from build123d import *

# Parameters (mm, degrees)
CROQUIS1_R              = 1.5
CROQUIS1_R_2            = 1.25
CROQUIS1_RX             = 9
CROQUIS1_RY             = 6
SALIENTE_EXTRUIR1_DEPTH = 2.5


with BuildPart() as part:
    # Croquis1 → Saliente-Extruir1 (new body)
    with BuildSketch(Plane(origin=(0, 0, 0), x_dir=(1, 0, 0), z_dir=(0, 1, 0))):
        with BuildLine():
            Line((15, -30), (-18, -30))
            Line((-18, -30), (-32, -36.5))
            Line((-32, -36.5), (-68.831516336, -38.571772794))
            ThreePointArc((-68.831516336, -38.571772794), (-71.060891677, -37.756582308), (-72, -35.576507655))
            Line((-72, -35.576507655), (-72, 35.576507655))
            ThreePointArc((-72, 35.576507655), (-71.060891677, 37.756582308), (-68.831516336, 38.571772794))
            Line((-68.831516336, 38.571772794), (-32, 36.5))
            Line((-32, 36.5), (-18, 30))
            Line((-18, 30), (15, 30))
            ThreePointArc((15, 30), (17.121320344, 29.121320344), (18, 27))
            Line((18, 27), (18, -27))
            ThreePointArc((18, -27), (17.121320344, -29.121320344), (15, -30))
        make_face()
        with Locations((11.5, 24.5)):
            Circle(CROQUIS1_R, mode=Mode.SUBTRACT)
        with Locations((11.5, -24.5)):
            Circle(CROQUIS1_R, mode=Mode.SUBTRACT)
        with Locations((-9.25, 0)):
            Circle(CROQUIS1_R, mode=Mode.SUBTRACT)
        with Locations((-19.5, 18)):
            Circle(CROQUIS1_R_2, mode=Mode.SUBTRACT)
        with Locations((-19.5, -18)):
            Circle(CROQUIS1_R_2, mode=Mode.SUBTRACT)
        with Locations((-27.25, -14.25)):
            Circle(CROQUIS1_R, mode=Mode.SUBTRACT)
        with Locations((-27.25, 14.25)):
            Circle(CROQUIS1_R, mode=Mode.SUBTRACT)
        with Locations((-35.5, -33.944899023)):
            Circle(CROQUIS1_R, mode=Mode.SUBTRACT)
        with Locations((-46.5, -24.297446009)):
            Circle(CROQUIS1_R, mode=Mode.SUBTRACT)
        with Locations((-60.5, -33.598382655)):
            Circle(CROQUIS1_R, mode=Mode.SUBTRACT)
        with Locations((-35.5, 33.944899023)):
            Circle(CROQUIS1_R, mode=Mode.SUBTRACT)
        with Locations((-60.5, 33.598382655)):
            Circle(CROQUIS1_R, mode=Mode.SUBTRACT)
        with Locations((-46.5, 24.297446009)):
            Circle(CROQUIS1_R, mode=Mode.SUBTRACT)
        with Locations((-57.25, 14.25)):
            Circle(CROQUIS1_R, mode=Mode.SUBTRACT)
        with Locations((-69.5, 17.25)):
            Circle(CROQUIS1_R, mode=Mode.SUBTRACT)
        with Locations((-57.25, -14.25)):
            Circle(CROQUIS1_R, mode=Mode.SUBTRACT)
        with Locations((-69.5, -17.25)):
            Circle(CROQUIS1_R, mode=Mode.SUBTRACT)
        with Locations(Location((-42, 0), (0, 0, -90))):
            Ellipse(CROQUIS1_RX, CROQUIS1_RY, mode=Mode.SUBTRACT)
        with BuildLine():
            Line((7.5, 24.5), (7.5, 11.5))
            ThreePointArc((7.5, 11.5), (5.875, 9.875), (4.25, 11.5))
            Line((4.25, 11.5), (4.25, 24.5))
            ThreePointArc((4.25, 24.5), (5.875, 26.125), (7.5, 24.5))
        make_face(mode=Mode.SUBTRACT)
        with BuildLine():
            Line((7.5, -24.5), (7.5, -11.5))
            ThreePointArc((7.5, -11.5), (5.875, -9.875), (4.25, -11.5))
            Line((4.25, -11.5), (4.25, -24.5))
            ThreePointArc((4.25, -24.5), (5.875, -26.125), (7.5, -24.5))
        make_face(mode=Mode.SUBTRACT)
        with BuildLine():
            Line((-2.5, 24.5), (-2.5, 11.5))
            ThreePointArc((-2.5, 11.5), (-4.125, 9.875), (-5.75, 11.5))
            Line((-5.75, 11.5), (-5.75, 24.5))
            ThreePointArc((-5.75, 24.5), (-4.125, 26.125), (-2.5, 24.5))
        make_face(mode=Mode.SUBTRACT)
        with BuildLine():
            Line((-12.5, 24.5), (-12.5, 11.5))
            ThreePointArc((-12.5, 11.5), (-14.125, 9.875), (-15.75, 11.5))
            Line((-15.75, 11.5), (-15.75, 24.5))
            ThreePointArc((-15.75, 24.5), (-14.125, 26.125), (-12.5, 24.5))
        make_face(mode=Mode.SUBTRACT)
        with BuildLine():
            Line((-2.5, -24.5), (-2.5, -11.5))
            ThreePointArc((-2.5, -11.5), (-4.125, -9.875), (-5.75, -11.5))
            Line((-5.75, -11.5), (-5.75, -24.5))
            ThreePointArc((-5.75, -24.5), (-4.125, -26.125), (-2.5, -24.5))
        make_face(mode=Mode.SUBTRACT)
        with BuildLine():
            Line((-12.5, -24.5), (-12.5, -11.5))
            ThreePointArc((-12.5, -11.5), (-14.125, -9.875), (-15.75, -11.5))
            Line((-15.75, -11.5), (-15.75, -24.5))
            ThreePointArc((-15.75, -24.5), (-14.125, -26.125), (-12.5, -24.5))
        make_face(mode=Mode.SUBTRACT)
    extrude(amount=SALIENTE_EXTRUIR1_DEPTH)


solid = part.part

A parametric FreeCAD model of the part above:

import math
import FreeCAD as App
import Part
import Sketcher
from FreeCAD import Vector

doc = App.newDocument("Part")
body = doc.addObject("PartDesign::Body", "Body")

# Sketch on XZ plane
sketch1 = body.newObject("Sketcher::SketchObject", "Sketch")
sketch1.AttachmentSupport = (doc.getObject("XZ_Plane"), [""])
sketch1.MapMode = "FlatFace"
sketch1.addGeometry([
    Part.LineSegment(Vector(-18, 30, 0), Vector(15, 30, 0)),  # 0
    Part.ArcOfCircle(Part.Circle(Vector(15, 27, 0), Vector(0, 0, 1), 3), math.radians(0), math.radians(90)),  # 1
    Part.LineSegment(Vector(18, 27, 0), Vector(18, -27, 0)),  # 2
    Part.ArcOfCircle(Part.Circle(Vector(15, -27, 0), Vector(0, 0, 1), 3), math.radians(-90), math.radians(0)),  # 3
    Part.LineSegment(Vector(15, -30, 0), Vector(-18, -30, 0)),  # 4
    Part.LineSegment(Vector(-18, -30, 0), Vector(-32, -36.5, 0)),  # 5
    Part.LineSegment(Vector(-32, -36.5, 0), Vector(-68.831516, -38.571773, 0)),  # 6
    Part.ArcOfCircle(Part.Circle(Vector(-69, -35.576508, 0), Vector(0, 0, 1), 3), math.radians(-180), math.radians(-86.780505)),  # 7
    Part.LineSegment(Vector(-72, -35.576508, 0), Vector(-72, 35.576508, 0)),  # 8
    Part.ArcOfCircle(Part.Circle(Vector(-69, 35.576508, 0), Vector(0, 0, 1), 3), math.radians(86.780505), math.radians(180)),  # 9
    Part.LineSegment(Vector(-68.831516, 38.571773, 0), Vector(-32, 36.5, 0)),  # 10
    Part.LineSegment(Vector(-32, 36.5, 0), Vector(-18, 30, 0)),  # 11
    Part.Circle(Vector(11.5, 24.5, 0), Vector(0, 0, 1), 1.5),  # 12
    Part.ArcOfCircle(Part.Circle(Vector(5.875, 24.5, 0), Vector(0, 0, 1), 1.625), math.radians(0), math.radians(180)),  # 13
    Part.LineSegment(Vector(4.25, 24.5, 0), Vector(4.25, 11.5, 0)),  # 14
    Part.ArcOfCircle(Part.Circle(Vector(5.875, 11.5, 0), Vector(0, 0, 1), 1.625), math.radians(180), math.radians(360)),  # 15
    Part.LineSegment(Vector(7.5, 11.5, 0), Vector(7.5, 24.5, 0)),  # 16
    Part.ArcOfCircle(Part.Circle(Vector(-4.125, 24.5, 0), Vector(0, 0, 1), 1.625), math.radians(0), math.radians(180)),  # 17
    Part.LineSegment(Vector(-5.75, 24.5, 0), Vector(-5.75, 11.5, 0)),  # 18
    Part.ArcOfCircle(Part.Circle(Vector(-4.125, 11.5, 0), Vector(0, 0, 1), 1.625), math.radians(180), math.radians(360)),  # 19
    Part.LineSegment(Vector(-2.5, 11.5, 0), Vector(-2.5, 24.5, 0)),  # 20
    Part.ArcOfCircle(Part.Circle(Vector(-14.125, 24.5, 0), Vector(0, 0, 1), 1.625), math.radians(0), math.radians(180)),  # 21
    Part.LineSegment(Vector(-15.75, 24.5, 0), Vector(-15.75, 11.5, 0)),  # 22
    Part.ArcOfCircle(Part.Circle(Vector(-14.125, 11.5, 0), Vector(0, 0, 1), 1.625), math.radians(180), math.radians(360)),  # 23
    Part.LineSegment(Vector(-12.5, 11.5, 0), Vector(-12.5, 24.5, 0)),  # 24
    Part.Circle(Vector(-19.5, 18, 0), Vector(0, 0, 1), 1.25),  # 25
    Part.Circle(Vector(-27.25, 14.25, 0), Vector(0, 0, 1), 1.5),  # 26
    Part.Circle(Vector(-35.5, 33.944899, 0), Vector(0, 0, 1), 1.5),  # 27
    Part.Circle(Vector(-46.5, 24.297446, 0), Vector(0, 0, 1), 1.5),  # 28
    Part.Circle(Vector(-60.5, 33.598383, 0), Vector(0, 0, 1), 1.5),  # 29
    Part.Circle(Vector(-57.25, 14.25, 0), Vector(0, 0, 1), 1.5),  # 30
    Part.Circle(Vector(-69.5, 17.25, 0), Vector(0, 0, 1), 1.5),  # 31
    Part.Circle(Vector(-9.25, 0, 0), Vector(0, 0, 1), 1.5),  # 32
    Part.Circle(Vector(-27.25, -14.25, 0), Vector(0, 0, 1), 1.5),  # 33
    Part.LineSegment(Vector(7.5, -24.5, 0), Vector(7.5, -11.5, 0)),  # 34
    Part.ArcOfCircle(Part.Circle(Vector(5.875, -11.5, 0), Vector(0, 0, 1), 1.625), math.radians(0), math.radians(180)),  # 35
    Part.LineSegment(Vector(4.25, -11.5, 0), Vector(4.25, -24.5, 0)),  # 36
    Part.ArcOfCircle(Part.Circle(Vector(5.875, -24.5, 0), Vector(0, 0, 1), 1.625), math.radians(180), math.radians(360)),  # 37
    Part.Circle(Vector(11.5, -24.5, 0), Vector(0, 0, 1), 1.5),  # 38
    Part.LineSegment(Vector(-2.5, -24.5, 0), Vector(-2.5, -11.5, 0)),  # 39
    Part.ArcOfCircle(Part.Circle(Vector(-4.125, -11.5, 0), Vector(0, 0, 1), 1.625), math.radians(0), math.radians(180)),  # 40
    Part.LineSegment(Vector(-5.75, -11.5, 0), Vector(-5.75, -24.5, 0)),  # 41
    Part.ArcOfCircle(Part.Circle(Vector(-4.125, -24.5, 0), Vector(0, 0, 1), 1.625), math.radians(180), math.radians(360)),  # 42
    Part.LineSegment(Vector(-12.5, -24.5, 0), Vector(-12.5, -11.5, 0)),  # 43
    Part.ArcOfCircle(Part.Circle(Vector(-14.125, -11.5, 0), Vector(0, 0, 1), 1.625), math.radians(0), math.radians(180)),  # 44
    Part.LineSegment(Vector(-15.75, -11.5, 0), Vector(-15.75, -24.5, 0)),  # 45
    Part.ArcOfCircle(Part.Circle(Vector(-14.125, -24.5, 0), Vector(0, 0, 1), 1.625), math.radians(180), math.radians(360)),  # 46
    Part.Circle(Vector(-19.5, -18, 0), Vector(0, 0, 1), 1.25),  # 47
    Part.Ellipse(Vector(-42, 9, 0), Vector(-48, 0, 0), Vector(-42, 0, 0)),  # 48
    Part.Circle(Vector(-57.25, -14.25, 0), Vector(0, 0, 1), 1.5),  # 49
    Part.Circle(Vector(-69.5, -17.25, 0), Vector(0, 0, 1), 1.5),  # 50
    Part.Circle(Vector(-46.5, -24.297446, 0), Vector(0, 0, 1), 1.5),  # 51
    Part.Circle(Vector(-35.5, -33.944899, 0), Vector(0, 0, 1), 1.5),  # 52
    Part.Circle(Vector(-60.5, -33.598383, 0), Vector(0, 0, 1), 1.5),  # 53
], False)
sketch1.addConstraint([
    Sketcher.Constraint("Block", 48),
    Sketcher.Constraint("Tangent", 0, 2, 1, 2),
    Sketcher.Constraint("Tangent", 1, 1, 2, 1),
    Sketcher.Constraint("Tangent", 2, 2, 3, 2),
    Sketcher.Constraint("Tangent", 3, 1, 4, 1),
    Sketcher.Constraint("Coincident", 4, 2, 5, 1),
    Sketcher.Constraint("Coincident", 5, 2, 6, 1),
    Sketcher.Constraint("Tangent", 6, 2, 7, 2),
    Sketcher.Constraint("Tangent", 7, 1, 8, 1),
    Sketcher.Constraint("Tangent", 8, 2, 9, 2),
    Sketcher.Constraint("Tangent", 9, 1, 10, 1),
    Sketcher.Constraint("Coincident", 10, 2, 11, 1),
    Sketcher.Constraint("Coincident", 11, 2, 0, 1),
    Sketcher.Constraint("Tangent", 13, 2, 14, 1),
    Sketcher.Constraint("Tangent", 14, 2, 15, 1),
    Sketcher.Constraint("Tangent", 15, 2, 16, 1),
    Sketcher.Constraint("Tangent", 16, 2, 13, 1),
    Sketcher.Constraint("Tangent", 17, 2, 18, 1),
    Sketcher.Constraint("Tangent", 18, 2, 19, 1),
    Sketcher.Constraint("Tangent", 19, 2, 20, 1),
    Sketcher.Constraint("Tangent", 20, 2, 17, 1),
    Sketcher.Constraint("Tangent", 21, 2, 22, 1),
    Sketcher.Constraint("Tangent", 22, 2, 23, 1),
    Sketcher.Constraint("Tangent", 23, 2, 24, 1),
    Sketcher.Constraint("Tangent", 24, 2, 21, 1),
    Sketcher.Constraint("Tangent", 34, 2, 35, 1),
    Sketcher.Constraint("Tangent", 35, 2, 36, 1),
    Sketcher.Constraint("Tangent", 36, 2, 37, 1),
    Sketcher.Constraint("Tangent", 37, 2, 34, 1),
    Sketcher.Constraint("Tangent", 39, 2, 40, 1),
    Sketcher.Constraint("Tangent", 40, 2, 41, 1),
    Sketcher.Constraint("Tangent", 41, 2, 42, 1),
    Sketcher.Constraint("Tangent", 42, 2, 39, 1),
    Sketcher.Constraint("Tangent", 43, 2, 44, 1),
    Sketcher.Constraint("Tangent", 44, 2, 45, 1),
    Sketcher.Constraint("Tangent", 45, 2, 46, 1),
    Sketcher.Constraint("Tangent", 46, 2, 43, 1),
    Sketcher.Constraint("Horizontal", 0),
    Sketcher.Constraint("Vertical", 2),
    Sketcher.Constraint("Horizontal", 4),
    Sketcher.Constraint("Vertical", 8),
    Sketcher.Constraint("Vertical", 14),
    Sketcher.Constraint("Vertical", 16),
    Sketcher.Constraint("Vertical", 18),
    Sketcher.Constraint("Vertical", 20),
    Sketcher.Constraint("Vertical", 22),
    Sketcher.Constraint("Vertical", 24),
    Sketcher.Constraint("Vertical", 34),
    Sketcher.Constraint("Vertical", 36),
    Sketcher.Constraint("Vertical", 39),
    Sketcher.Constraint("Vertical", 41),
    Sketcher.Constraint("Vertical", 43),
    Sketcher.Constraint("Vertical", 45),
    Sketcher.Constraint("Equal", 1, 3),
    Sketcher.Constraint("Equal", 3, 7),
    Sketcher.Constraint("Equal", 7, 9),
    Sketcher.Constraint("Equal", 15, 17),
    Sketcher.Constraint("Equal", 19, 21),
    Sketcher.Constraint("Equal", 12, 26),
    Sketcher.Constraint("Equal", 26, 27),
    Sketcher.Constraint("Equal", 27, 28),
    Sketcher.Constraint("Equal", 28, 29),
    Sketcher.Constraint("Equal", 29, 30),
    Sketcher.Constraint("Equal", 30, 31),
    Sketcher.Constraint("Equal", 31, 32),
    Sketcher.Constraint("Equal", 32, 33),
    Sketcher.Constraint("Equal", 23, 35),
    Sketcher.Constraint("Equal", 33, 38),
    Sketcher.Constraint("Equal", 37, 40),
    Sketcher.Constraint("Equal", 42, 44),
    Sketcher.Constraint("Equal", 25, 47),
    Sketcher.Constraint("Equal", 38, 49),
    Sketcher.Constraint("Equal", 49, 50),
    Sketcher.Constraint("Equal", 50, 51),
    Sketcher.Constraint("Equal", 51, 52),
    Sketcher.Constraint("Equal", 52, 53),
    Sketcher.Constraint("Symmetric", 26, 3, 33, 3, -1),
    Sketcher.Constraint("Symmetric", 15, 3, 35, 3, -1),
    Sketcher.Constraint("Symmetric", 12, 3, 38, 3, -1),
    Sketcher.Constraint("Symmetric", 19, 3, 40, 3, -1),
    Sketcher.Constraint("Symmetric", 23, 3, 44, 3, -1),
    Sketcher.Constraint("Symmetric", 25, 3, 47, 3, -1),
    Sketcher.Constraint("Symmetric", 30, 3, 49, 3, -1),
    Sketcher.Constraint("Symmetric", 31, 3, 50, 3, -1),
    Sketcher.Constraint("Symmetric", 28, 3, 51, 3, -1),
    Sketcher.Constraint("Symmetric", 27, 3, 52, 3, -1),
    Sketcher.Constraint("Symmetric", 29, 3, 53, 3, -1),
    Sketcher.Constraint("Symmetric", 6, 2, 9, 1, -1),
    Sketcher.Constraint("Symmetric", 4, 2, 11, 2, -1),
    Sketcher.Constraint("PointOnObject", 32, 3, -1),
    Sketcher.Constraint("Horizontal", 12, 3, 13, 3),
    Sketcher.Constraint("Horizontal", 13, 3, 17, 3),
    Sketcher.Constraint("Horizontal", 15, 3, 19, 3),
    Sketcher.Constraint("Horizontal", 17, 3, 21, 3),
    Sketcher.Constraint("Horizontal", 19, 3, 23, 3),
    Sketcher.Constraint("Horizontal", 26, 3, 30, 3),
    Sketcher.Constraint("Horizontal", 37, 3, 38, 3),
    Sketcher.Constraint("Horizontal", 38, 3, 42, 3),
    Sketcher.Constraint("Horizontal", 42, 3, 46, 3),
    Sketcher.Constraint("Vertical", 5, 2, 10, 2),
    Sketcher.Constraint("Diameter", 12, 3.0),
    Sketcher.Constraint("Radius", 1, 3.0),
    Sketcher.Constraint("Diameter", 25, 2.5),
    Sketcher.Constraint("DistanceX", 0, 1, 0, 2, 33.0),
    Sketcher.Constraint("DistanceY", 2, 2, 2, 1, 54.0),
    Sketcher.Constraint("DistanceY", 14, 2, 14, 1, 13.0),
    Sketcher.Constraint("DistanceX", -1, 1, 1, 3, 15.0),
    Sketcher.Constraint("DistanceX", 7, 3, -1, 1, 69.0),
    Sketcher.Constraint("DistanceY", -1, 1, 25, 3, 18.0),
    Sketcher.Constraint("DistanceX", 5, 2, -1, 1, 32.0),
    Sketcher.Constraint("Radius", 13, 1.625),
    Sketcher.Constraint("DistanceX", -1, 1, 12, 3, 11.5),
    Sketcher.Constraint("DistanceY", -1, 1, 12, 3, 24.5),
    Sketcher.Constraint("DistanceX", 25, 3, -1, 1, 19.5),
    Sketcher.Constraint("DistanceX", 27, 3, -1, 1, 35.5),
    Sketcher.Constraint("DistanceX", 28, 3, -1, 1, 46.5),
    Sketcher.Constraint("DistanceX", 29, 3, -1, 1, 60.5),
    Sketcher.Constraint("DistanceX", 31, 3, -1, 1, 69.5),
    Sketcher.Constraint("DistanceY", 5, 2, -1, 1, 36.5),
    Sketcher.Constraint("DistanceX", -1, 1, 15, 2, 7.5),
    Sketcher.Constraint("DistanceX", 19, 2, -1, 1, 2.5),
    Sketcher.Constraint("DistanceX", 23, 2, -1, 1, 12.5),
    Sketcher.Constraint("DistanceX", 26, 3, -1, 1, 27.25),
    Sketcher.Constraint("DistanceY", -1, 1, 26, 3, 14.25),
    Sketcher.Constraint("DistanceX", 30, 3, -1, 1, 57.25),
    Sketcher.Constraint("DistanceY", -1, 1, 31, 3, 17.25),
    Sketcher.Constraint("DistanceX", 32, 3, -1, 1, 9.25),
    Sketcher.Constraint("DistanceY", -1, 1, 27, 3, 33.944899),
    Sketcher.Constraint("Distance", 6, 36.889739),
    Sketcher.Constraint("DistanceY", -1, 1, 28, 3, 24.297446),
    Sketcher.Constraint("DistanceY", -1, 1, 29, 3, 33.598383),
])
pad1 = body.newObject("PartDesign::Pad", "Pad")
pad1.Profile = sketch1
pad1.Length = 2.5
pad1.Reversed = True

doc.recompute()
